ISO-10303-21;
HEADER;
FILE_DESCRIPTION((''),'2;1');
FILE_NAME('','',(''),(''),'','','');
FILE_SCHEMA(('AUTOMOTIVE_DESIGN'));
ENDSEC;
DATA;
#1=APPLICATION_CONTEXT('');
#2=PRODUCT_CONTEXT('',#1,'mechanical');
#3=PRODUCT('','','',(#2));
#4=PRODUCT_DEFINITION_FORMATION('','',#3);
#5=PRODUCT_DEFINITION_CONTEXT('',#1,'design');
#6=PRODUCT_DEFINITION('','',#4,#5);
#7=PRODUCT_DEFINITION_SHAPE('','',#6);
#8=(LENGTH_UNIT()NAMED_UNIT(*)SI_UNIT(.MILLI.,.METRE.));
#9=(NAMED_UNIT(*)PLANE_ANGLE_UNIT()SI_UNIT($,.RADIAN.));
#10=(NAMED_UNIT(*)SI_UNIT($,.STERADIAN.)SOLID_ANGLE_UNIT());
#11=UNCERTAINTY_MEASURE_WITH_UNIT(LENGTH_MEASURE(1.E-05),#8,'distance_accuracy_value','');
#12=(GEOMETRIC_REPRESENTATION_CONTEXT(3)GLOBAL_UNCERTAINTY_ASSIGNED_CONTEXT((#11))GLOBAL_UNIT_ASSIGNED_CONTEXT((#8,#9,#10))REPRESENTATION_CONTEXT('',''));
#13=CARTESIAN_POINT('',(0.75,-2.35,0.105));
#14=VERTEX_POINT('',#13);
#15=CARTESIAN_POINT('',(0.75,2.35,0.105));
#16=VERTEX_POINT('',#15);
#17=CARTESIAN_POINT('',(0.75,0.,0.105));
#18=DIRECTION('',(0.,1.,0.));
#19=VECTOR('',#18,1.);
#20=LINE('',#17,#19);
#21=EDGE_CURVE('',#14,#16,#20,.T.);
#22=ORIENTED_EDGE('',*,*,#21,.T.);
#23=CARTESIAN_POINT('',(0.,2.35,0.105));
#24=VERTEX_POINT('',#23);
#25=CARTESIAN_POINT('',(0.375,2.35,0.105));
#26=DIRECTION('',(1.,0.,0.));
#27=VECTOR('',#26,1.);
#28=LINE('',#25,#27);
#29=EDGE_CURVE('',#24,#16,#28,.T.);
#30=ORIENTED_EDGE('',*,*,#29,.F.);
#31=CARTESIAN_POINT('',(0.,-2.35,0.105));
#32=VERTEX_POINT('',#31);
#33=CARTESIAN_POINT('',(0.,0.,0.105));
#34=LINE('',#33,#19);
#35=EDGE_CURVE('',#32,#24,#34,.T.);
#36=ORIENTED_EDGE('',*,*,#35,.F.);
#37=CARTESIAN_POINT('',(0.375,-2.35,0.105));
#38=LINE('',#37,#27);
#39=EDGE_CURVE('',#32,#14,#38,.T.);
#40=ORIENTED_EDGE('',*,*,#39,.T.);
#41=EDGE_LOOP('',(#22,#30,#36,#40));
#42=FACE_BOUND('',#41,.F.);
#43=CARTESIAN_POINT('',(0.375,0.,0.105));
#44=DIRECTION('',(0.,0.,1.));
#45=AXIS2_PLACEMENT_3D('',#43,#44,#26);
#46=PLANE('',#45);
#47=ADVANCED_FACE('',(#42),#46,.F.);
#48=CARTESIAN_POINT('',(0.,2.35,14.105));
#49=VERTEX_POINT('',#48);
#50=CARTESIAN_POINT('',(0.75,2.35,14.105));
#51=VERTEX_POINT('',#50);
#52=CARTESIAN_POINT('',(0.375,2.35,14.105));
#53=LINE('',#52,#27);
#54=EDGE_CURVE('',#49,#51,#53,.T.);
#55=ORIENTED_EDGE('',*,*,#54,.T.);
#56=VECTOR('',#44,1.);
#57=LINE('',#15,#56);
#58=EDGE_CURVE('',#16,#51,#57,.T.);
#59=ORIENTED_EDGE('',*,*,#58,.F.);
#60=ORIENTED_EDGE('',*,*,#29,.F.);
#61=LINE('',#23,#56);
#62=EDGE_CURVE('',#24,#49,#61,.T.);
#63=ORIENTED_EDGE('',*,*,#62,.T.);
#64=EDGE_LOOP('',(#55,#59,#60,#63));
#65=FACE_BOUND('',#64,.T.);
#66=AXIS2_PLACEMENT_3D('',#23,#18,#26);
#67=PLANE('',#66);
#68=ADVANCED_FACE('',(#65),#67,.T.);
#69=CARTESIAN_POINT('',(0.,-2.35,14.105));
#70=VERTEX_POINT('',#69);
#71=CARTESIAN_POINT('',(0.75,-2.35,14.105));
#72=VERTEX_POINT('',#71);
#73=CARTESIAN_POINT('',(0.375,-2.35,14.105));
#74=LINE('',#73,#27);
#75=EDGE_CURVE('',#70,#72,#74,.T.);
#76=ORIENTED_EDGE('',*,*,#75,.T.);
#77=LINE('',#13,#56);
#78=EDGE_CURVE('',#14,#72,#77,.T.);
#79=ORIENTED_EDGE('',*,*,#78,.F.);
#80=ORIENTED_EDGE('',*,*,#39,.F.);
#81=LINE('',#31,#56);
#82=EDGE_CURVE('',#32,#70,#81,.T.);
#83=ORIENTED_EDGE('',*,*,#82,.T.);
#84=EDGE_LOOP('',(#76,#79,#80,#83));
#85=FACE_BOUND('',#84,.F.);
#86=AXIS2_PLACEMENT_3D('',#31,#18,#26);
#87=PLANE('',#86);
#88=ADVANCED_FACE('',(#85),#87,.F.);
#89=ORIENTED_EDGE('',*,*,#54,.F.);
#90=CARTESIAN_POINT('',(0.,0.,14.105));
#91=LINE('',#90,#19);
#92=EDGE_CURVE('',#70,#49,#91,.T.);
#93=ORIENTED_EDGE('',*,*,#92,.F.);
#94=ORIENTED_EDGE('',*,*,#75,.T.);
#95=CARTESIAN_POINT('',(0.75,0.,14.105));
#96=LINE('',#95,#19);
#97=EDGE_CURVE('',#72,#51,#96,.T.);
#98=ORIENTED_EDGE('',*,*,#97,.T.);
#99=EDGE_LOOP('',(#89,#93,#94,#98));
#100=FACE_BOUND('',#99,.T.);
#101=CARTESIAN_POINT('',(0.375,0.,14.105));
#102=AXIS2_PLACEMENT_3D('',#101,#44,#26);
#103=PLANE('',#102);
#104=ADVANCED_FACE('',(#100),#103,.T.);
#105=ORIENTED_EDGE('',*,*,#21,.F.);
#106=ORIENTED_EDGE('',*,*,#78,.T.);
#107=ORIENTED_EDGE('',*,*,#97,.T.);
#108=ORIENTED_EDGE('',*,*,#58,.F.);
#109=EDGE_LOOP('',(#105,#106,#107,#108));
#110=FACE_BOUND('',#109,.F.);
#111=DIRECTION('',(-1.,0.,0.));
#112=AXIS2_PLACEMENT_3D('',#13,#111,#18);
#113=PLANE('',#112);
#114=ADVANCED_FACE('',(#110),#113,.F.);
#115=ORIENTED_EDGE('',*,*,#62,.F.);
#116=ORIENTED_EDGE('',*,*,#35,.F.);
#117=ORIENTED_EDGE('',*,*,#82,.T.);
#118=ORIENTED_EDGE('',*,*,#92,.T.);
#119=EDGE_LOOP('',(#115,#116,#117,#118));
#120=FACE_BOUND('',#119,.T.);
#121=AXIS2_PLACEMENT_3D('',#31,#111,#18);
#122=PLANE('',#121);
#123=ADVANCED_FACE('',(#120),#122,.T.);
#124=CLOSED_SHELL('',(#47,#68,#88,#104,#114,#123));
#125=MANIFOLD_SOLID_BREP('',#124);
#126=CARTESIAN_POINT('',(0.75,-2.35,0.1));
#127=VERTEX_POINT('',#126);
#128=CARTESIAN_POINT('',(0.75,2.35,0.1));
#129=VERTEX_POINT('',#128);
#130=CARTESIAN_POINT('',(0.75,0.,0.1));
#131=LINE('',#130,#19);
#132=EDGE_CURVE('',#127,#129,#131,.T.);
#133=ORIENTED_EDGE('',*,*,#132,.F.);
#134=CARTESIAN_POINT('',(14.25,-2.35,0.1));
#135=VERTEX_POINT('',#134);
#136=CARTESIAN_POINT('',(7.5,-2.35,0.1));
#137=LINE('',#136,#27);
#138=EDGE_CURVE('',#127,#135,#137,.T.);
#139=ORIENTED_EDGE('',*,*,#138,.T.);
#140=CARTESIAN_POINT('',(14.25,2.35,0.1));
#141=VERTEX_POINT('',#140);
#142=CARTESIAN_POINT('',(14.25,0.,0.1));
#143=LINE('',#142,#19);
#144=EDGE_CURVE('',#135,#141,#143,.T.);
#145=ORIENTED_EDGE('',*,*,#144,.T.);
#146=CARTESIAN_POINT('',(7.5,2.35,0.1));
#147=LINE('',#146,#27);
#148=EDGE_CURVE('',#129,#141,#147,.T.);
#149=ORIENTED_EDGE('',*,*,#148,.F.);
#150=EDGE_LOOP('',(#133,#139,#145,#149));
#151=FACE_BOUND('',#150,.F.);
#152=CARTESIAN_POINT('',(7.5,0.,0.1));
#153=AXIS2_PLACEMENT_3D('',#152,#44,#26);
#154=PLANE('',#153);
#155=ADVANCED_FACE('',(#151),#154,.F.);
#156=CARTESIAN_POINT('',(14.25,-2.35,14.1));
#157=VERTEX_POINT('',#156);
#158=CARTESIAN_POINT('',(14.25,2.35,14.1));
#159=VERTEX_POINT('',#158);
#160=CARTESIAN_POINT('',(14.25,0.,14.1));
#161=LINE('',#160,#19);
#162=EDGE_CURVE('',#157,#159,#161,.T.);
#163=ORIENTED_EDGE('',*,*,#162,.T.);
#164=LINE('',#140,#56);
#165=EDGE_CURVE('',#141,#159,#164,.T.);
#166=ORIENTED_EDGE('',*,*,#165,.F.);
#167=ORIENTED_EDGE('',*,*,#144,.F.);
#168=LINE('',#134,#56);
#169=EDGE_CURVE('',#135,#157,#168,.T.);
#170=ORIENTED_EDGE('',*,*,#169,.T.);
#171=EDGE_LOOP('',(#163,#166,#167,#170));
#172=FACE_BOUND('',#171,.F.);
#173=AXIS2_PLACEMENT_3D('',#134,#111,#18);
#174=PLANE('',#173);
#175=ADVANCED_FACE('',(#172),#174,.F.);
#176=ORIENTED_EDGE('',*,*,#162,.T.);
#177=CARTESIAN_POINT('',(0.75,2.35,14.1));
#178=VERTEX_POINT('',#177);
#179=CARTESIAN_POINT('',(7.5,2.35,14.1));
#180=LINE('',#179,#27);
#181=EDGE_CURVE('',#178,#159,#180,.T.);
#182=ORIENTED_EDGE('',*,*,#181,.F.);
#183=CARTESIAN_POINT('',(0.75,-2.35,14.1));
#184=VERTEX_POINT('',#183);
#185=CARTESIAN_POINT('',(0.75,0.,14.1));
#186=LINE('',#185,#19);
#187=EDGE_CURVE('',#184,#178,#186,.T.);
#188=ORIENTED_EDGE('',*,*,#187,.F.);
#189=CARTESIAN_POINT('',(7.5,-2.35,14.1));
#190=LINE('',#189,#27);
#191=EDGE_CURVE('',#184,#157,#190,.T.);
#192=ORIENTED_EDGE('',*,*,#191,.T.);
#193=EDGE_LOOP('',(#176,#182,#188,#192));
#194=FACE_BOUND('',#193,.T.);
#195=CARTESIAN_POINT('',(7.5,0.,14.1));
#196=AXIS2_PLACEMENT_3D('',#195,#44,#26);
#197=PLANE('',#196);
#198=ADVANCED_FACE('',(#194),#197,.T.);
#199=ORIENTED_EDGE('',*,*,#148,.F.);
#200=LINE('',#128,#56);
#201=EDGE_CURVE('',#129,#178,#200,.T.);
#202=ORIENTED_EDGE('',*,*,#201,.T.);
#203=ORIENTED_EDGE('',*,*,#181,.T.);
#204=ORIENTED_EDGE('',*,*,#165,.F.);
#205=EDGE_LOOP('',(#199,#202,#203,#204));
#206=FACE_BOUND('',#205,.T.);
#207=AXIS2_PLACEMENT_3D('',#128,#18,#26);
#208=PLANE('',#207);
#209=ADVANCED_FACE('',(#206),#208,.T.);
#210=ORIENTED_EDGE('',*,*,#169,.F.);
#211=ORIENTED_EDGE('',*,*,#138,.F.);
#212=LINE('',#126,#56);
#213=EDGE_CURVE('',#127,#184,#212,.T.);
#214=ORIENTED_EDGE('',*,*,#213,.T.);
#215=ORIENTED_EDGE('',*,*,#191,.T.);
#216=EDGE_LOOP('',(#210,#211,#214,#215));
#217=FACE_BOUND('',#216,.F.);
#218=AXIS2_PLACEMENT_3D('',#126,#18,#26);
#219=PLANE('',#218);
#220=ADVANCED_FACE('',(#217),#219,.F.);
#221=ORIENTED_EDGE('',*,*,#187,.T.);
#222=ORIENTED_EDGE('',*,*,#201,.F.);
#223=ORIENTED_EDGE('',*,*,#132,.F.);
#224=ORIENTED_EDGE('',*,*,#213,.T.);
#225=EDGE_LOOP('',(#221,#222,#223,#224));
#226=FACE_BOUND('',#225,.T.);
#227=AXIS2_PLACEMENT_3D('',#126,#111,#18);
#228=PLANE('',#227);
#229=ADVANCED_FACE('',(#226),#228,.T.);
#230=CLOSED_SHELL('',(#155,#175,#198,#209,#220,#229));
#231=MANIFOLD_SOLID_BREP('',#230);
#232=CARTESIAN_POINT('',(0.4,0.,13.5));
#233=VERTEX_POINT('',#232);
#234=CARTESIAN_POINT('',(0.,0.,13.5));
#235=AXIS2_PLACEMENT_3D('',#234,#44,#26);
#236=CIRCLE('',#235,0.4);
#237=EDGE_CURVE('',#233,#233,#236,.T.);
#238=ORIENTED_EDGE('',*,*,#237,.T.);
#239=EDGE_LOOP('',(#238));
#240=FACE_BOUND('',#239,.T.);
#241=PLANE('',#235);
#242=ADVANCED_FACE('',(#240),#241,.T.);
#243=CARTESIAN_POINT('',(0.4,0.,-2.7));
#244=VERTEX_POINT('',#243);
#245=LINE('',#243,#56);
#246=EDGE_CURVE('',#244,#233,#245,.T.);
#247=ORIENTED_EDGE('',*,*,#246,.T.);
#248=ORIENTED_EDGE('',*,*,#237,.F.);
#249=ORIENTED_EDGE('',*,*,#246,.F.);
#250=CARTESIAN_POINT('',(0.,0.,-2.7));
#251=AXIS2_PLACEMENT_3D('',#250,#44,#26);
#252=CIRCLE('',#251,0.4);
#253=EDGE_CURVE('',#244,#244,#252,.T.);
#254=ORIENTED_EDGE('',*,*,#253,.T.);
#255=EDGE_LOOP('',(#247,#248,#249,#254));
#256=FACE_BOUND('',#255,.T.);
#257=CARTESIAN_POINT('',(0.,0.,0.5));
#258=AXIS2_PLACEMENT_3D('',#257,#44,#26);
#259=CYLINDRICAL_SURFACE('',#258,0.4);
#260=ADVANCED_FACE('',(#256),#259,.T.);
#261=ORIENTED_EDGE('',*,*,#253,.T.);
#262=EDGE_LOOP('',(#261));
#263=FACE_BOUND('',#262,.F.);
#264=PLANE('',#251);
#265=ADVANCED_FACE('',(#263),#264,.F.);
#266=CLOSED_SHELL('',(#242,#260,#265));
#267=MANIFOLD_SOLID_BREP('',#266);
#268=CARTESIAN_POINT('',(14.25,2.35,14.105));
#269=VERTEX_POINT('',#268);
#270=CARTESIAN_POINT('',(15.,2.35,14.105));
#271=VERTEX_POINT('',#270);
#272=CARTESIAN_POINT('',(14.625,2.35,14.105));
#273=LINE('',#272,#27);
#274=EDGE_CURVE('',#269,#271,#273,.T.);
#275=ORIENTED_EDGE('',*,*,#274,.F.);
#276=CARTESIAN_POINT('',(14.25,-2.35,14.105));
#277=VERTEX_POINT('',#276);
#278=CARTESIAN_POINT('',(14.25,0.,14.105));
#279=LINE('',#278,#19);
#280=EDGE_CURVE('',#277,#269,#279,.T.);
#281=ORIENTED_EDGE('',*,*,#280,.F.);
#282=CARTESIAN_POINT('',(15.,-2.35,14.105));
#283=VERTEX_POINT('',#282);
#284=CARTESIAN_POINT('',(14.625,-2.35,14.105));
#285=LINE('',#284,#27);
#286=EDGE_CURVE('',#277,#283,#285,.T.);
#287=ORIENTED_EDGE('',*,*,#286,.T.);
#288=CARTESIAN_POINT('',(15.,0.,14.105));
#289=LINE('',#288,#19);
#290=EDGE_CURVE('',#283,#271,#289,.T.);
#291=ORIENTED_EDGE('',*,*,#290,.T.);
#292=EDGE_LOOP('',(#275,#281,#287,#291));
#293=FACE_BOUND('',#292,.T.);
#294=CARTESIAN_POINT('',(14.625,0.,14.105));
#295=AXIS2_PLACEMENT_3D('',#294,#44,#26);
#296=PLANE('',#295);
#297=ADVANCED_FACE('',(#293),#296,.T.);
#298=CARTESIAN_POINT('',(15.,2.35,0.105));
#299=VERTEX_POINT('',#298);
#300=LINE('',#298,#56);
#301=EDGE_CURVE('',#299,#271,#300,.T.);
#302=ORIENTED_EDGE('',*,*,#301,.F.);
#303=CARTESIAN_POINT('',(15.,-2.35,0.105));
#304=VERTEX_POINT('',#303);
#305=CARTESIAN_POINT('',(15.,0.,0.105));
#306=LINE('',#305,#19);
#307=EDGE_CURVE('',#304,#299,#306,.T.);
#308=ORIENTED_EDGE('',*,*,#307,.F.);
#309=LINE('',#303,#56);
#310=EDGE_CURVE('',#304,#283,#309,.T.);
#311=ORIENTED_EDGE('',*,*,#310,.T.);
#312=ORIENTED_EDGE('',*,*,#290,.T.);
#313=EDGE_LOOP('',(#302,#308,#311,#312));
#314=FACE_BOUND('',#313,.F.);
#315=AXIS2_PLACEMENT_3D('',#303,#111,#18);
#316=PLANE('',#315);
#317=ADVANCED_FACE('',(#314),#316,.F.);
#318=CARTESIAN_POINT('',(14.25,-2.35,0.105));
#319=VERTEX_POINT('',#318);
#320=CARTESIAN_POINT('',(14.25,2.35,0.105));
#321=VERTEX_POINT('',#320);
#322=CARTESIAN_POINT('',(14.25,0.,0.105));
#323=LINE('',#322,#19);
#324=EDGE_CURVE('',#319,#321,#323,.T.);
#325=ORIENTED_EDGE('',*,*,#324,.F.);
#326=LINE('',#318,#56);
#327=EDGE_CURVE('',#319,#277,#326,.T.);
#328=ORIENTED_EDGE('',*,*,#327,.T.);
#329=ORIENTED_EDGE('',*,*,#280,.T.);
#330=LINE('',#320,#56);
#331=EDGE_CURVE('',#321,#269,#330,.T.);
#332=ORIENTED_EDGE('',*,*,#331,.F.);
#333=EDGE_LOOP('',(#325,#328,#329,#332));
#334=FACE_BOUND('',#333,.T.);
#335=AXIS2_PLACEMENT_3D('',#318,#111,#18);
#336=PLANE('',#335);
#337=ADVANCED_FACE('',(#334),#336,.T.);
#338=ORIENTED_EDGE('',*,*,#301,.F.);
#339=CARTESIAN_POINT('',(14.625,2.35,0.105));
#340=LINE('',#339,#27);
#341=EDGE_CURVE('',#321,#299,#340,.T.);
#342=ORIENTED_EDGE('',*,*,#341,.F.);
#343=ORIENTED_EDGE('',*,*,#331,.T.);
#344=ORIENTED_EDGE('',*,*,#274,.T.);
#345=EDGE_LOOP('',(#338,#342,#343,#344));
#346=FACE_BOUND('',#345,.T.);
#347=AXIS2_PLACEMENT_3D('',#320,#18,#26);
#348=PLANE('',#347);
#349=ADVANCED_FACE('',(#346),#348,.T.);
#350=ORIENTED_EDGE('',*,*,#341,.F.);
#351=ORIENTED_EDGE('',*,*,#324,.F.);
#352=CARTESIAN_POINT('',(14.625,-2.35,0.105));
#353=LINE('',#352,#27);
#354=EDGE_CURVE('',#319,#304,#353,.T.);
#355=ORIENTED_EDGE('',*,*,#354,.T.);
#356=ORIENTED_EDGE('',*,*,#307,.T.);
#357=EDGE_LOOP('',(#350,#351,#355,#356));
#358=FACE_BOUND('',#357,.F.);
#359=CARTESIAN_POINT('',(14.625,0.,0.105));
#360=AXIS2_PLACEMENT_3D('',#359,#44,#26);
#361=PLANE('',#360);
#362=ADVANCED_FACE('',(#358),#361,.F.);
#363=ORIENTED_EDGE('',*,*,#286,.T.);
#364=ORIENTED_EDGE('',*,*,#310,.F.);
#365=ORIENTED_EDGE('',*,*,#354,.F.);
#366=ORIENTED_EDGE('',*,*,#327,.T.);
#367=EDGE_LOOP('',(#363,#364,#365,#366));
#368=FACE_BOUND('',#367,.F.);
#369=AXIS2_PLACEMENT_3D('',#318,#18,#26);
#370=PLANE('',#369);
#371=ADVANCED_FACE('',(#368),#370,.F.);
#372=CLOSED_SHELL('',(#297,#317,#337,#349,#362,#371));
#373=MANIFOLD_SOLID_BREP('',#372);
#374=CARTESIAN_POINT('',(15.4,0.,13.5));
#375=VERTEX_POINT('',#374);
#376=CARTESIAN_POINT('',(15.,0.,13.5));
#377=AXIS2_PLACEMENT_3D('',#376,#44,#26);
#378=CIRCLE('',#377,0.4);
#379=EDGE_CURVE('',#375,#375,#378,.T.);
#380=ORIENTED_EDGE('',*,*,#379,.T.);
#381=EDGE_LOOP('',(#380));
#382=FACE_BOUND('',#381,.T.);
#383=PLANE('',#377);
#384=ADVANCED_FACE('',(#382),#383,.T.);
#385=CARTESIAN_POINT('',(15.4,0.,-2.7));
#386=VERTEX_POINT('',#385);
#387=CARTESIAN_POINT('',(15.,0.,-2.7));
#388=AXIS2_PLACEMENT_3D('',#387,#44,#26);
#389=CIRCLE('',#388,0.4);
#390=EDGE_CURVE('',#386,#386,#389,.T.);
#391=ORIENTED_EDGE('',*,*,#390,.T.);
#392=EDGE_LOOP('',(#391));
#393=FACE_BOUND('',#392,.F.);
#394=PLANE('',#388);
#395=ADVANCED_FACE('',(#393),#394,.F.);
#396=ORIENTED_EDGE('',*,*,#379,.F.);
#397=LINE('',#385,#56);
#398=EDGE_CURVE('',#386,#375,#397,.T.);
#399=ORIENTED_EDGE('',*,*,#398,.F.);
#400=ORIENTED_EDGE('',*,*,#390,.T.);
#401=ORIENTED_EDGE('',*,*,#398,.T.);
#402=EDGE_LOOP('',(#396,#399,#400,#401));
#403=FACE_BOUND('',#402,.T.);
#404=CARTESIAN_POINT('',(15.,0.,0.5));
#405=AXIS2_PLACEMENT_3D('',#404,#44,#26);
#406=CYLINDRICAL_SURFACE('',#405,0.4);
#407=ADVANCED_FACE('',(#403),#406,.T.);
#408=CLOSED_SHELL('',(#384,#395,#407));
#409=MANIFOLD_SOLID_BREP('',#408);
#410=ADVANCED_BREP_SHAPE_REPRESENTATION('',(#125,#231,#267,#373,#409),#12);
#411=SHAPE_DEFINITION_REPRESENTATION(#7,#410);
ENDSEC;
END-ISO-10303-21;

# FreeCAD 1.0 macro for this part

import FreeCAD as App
import Part
import Sketcher
from FreeCAD import Vector


def add_polygon(sketch, points):
    """Adds a closed chain of lines whose ends are joined by coincident constraints."""
    first, n = sketch.GeometryCount, len(points)
    for a, b in zip(points, points[1:] + points[:1]):
        sketch.addGeometry(Part.LineSegment(App.Vector(*a, 0), App.Vector(*b, 0)), False)
    for i in range(n):
        sketch.addConstraint(Sketcher.Constraint("Coincident", first + i, 2, first + (i + 1) % n, 1))

doc = App.newDocument("Part")
body = doc.addObject("PartDesign::Body", "Body")

# Sketch on XY plane
sketch1 = body.newObject("Sketcher::SketchObject", "Sketch")
sketch1.AttachmentSupport = (doc.getObject("XY_Plane"), [""])
sketch1.MapMode = "FlatFace"
sketch1.AttachmentOffset = App.Placement(Vector(0, 0, 0.1), App.Rotation())
add_polygon(sketch1, [(0.8, 2.4), (0.8, -2.4), (14.2, -2.4), (14.2, 2.4)])  # lines 0-3
sketch1.addConstraint(Sketcher.Constraint("Vertical", 0))
sketch1.addConstraint(Sketcher.Constraint("Horizontal", 1))
sketch1.addConstraint(Sketcher.Constraint("Vertical", 2))
sketch1.addConstraint(Sketcher.Constraint("Horizontal", 3))
sketch1.addConstraint(Sketcher.Constraint("DistanceX", 1, 1, 1, 2, 13.5))
sketch1.addConstraint(Sketcher.Constraint("DistanceY", 0, 2, 0, 1, 4.7))
sketch1.addConstraint(Sketcher.Constraint("DistanceX", -1, 1, 0, 2, 0.75))
sketch1.addConstraint(Sketcher.Constraint("DistanceY", 0, 2, -1, 1, 2.35))
pad1 = body.newObject("PartDesign::Pad", "Pad")
pad1.Profile = sketch1
pad1.Length = 14
body2 = doc.addObject("PartDesign::Body", "Body001")
body2.AllowCompound = True

# Sketch on XY plane
sketch2 = body2.newObject("Sketcher::SketchObject", "Sketch001")
sketch2.AttachmentSupport = (doc.getObject("XY_Plane001"), [""])
sketch2.MapMode = "FlatFace"
sketch2.AttachmentOffset = App.Placement(Vector(0, 0, 0.5), App.Rotation())
sketch2.addGeometry(Part.Circle(Vector(0, 0, 0), Vector(0, 0, 1), 0.4), False)
sketch2.addGeometry(Part.Circle(Vector(15, 0, 0), Vector(0, 0, 1), 0.4), False)
sketch2.addConstraint(Sketcher.Constraint("Coincident", 0, 3, -1, 1))
sketch2.addConstraint(Sketcher.Constraint("Equal", 0, 1))
sketch2.addConstraint(Sketcher.Constraint("PointOnObject", 1, 3, -1))
sketch2.addConstraint(Sketcher.Constraint("Diameter", 0, 0.8))
sketch2.addConstraint(Sketcher.Constraint("DistanceX", -1, 1, 1, 3, 15.0))
pad2 = body2.newObject("PartDesign::Pad", "Pad001")
pad2.Profile = sketch2
pad2.Type = "TwoLengths"
pad2.Length = 13
pad2.Length2 = 3.2
body3 = doc.addObject("PartDesign::Body", "Body002")
body3.AllowCompound = True

# Sketch on XY plane
sketch3 = body3.newObject("Sketcher::SketchObject", "Sketch002")
sketch3.AttachmentSupport = (doc.getObject("XY_Plane002"), [""])
sketch3.MapMode = "FlatFace"
sketch3.AttachmentOffset = App.Placement(Vector(0, 0, 0.105), App.Rotation())
add_polygon(sketch3, [(0, 2.4), (0, -2.4), (0.8, -2.4), (0.8, 2.4)])  # lines 0-3
add_polygon(sketch3, [(14.2, 2.4), (14.2, -2.4), (15, -2.4), (15, 2.4)])  # lines 4-7
sketch3.addConstraint(Sketcher.Constraint("Vertical", 0))
sketch3.addConstraint(Sketcher.Constraint("Horizontal", 1))
sketch3.addConstraint(Sketcher.Constraint("Vertical", 2))
sketch3.addConstraint(Sketcher.Constraint("Horizontal", 3))
sketch3.addConstraint(Sketcher.Constraint("Vertical", 4))
sketch3.addConstraint(Sketcher.Constraint("Horizontal", 5))
sketch3.addConstraint(Sketcher.Constraint("Vertical", 6))
sketch3.addConstraint(Sketcher.Constraint("Horizontal", 7))
sketch3.addConstraint(Sketcher.Constraint("Symmetric", 0, 2, 3, 2, -1, 1))
sketch3.addConstraint(Sketcher.Constraint("Horizontal", 1, 2, 4, 2))
sketch3.addConstraint(Sketcher.Constraint("Horizontal", 3, 2, 6, 2))
sketch3.addConstraint(Sketcher.Constraint("Equal", 3, 5))
sketch3.addConstraint(Sketcher.Constraint("DistanceY", 0, 2, 0, 1, 4.7))
sketch3.addConstraint(Sketcher.Constraint("DistanceX", -1, 1, 5, 2, 15.0))
sketch3.addConstraint(Sketcher.Constraint("DistanceX", 1, 1, 1, 2, 0.75))
pad3 = body3.newObject("PartDesign::Pad", "Pad002")
pad3.Profile = sketch3
pad3.Length = 14

doc.recompute()
